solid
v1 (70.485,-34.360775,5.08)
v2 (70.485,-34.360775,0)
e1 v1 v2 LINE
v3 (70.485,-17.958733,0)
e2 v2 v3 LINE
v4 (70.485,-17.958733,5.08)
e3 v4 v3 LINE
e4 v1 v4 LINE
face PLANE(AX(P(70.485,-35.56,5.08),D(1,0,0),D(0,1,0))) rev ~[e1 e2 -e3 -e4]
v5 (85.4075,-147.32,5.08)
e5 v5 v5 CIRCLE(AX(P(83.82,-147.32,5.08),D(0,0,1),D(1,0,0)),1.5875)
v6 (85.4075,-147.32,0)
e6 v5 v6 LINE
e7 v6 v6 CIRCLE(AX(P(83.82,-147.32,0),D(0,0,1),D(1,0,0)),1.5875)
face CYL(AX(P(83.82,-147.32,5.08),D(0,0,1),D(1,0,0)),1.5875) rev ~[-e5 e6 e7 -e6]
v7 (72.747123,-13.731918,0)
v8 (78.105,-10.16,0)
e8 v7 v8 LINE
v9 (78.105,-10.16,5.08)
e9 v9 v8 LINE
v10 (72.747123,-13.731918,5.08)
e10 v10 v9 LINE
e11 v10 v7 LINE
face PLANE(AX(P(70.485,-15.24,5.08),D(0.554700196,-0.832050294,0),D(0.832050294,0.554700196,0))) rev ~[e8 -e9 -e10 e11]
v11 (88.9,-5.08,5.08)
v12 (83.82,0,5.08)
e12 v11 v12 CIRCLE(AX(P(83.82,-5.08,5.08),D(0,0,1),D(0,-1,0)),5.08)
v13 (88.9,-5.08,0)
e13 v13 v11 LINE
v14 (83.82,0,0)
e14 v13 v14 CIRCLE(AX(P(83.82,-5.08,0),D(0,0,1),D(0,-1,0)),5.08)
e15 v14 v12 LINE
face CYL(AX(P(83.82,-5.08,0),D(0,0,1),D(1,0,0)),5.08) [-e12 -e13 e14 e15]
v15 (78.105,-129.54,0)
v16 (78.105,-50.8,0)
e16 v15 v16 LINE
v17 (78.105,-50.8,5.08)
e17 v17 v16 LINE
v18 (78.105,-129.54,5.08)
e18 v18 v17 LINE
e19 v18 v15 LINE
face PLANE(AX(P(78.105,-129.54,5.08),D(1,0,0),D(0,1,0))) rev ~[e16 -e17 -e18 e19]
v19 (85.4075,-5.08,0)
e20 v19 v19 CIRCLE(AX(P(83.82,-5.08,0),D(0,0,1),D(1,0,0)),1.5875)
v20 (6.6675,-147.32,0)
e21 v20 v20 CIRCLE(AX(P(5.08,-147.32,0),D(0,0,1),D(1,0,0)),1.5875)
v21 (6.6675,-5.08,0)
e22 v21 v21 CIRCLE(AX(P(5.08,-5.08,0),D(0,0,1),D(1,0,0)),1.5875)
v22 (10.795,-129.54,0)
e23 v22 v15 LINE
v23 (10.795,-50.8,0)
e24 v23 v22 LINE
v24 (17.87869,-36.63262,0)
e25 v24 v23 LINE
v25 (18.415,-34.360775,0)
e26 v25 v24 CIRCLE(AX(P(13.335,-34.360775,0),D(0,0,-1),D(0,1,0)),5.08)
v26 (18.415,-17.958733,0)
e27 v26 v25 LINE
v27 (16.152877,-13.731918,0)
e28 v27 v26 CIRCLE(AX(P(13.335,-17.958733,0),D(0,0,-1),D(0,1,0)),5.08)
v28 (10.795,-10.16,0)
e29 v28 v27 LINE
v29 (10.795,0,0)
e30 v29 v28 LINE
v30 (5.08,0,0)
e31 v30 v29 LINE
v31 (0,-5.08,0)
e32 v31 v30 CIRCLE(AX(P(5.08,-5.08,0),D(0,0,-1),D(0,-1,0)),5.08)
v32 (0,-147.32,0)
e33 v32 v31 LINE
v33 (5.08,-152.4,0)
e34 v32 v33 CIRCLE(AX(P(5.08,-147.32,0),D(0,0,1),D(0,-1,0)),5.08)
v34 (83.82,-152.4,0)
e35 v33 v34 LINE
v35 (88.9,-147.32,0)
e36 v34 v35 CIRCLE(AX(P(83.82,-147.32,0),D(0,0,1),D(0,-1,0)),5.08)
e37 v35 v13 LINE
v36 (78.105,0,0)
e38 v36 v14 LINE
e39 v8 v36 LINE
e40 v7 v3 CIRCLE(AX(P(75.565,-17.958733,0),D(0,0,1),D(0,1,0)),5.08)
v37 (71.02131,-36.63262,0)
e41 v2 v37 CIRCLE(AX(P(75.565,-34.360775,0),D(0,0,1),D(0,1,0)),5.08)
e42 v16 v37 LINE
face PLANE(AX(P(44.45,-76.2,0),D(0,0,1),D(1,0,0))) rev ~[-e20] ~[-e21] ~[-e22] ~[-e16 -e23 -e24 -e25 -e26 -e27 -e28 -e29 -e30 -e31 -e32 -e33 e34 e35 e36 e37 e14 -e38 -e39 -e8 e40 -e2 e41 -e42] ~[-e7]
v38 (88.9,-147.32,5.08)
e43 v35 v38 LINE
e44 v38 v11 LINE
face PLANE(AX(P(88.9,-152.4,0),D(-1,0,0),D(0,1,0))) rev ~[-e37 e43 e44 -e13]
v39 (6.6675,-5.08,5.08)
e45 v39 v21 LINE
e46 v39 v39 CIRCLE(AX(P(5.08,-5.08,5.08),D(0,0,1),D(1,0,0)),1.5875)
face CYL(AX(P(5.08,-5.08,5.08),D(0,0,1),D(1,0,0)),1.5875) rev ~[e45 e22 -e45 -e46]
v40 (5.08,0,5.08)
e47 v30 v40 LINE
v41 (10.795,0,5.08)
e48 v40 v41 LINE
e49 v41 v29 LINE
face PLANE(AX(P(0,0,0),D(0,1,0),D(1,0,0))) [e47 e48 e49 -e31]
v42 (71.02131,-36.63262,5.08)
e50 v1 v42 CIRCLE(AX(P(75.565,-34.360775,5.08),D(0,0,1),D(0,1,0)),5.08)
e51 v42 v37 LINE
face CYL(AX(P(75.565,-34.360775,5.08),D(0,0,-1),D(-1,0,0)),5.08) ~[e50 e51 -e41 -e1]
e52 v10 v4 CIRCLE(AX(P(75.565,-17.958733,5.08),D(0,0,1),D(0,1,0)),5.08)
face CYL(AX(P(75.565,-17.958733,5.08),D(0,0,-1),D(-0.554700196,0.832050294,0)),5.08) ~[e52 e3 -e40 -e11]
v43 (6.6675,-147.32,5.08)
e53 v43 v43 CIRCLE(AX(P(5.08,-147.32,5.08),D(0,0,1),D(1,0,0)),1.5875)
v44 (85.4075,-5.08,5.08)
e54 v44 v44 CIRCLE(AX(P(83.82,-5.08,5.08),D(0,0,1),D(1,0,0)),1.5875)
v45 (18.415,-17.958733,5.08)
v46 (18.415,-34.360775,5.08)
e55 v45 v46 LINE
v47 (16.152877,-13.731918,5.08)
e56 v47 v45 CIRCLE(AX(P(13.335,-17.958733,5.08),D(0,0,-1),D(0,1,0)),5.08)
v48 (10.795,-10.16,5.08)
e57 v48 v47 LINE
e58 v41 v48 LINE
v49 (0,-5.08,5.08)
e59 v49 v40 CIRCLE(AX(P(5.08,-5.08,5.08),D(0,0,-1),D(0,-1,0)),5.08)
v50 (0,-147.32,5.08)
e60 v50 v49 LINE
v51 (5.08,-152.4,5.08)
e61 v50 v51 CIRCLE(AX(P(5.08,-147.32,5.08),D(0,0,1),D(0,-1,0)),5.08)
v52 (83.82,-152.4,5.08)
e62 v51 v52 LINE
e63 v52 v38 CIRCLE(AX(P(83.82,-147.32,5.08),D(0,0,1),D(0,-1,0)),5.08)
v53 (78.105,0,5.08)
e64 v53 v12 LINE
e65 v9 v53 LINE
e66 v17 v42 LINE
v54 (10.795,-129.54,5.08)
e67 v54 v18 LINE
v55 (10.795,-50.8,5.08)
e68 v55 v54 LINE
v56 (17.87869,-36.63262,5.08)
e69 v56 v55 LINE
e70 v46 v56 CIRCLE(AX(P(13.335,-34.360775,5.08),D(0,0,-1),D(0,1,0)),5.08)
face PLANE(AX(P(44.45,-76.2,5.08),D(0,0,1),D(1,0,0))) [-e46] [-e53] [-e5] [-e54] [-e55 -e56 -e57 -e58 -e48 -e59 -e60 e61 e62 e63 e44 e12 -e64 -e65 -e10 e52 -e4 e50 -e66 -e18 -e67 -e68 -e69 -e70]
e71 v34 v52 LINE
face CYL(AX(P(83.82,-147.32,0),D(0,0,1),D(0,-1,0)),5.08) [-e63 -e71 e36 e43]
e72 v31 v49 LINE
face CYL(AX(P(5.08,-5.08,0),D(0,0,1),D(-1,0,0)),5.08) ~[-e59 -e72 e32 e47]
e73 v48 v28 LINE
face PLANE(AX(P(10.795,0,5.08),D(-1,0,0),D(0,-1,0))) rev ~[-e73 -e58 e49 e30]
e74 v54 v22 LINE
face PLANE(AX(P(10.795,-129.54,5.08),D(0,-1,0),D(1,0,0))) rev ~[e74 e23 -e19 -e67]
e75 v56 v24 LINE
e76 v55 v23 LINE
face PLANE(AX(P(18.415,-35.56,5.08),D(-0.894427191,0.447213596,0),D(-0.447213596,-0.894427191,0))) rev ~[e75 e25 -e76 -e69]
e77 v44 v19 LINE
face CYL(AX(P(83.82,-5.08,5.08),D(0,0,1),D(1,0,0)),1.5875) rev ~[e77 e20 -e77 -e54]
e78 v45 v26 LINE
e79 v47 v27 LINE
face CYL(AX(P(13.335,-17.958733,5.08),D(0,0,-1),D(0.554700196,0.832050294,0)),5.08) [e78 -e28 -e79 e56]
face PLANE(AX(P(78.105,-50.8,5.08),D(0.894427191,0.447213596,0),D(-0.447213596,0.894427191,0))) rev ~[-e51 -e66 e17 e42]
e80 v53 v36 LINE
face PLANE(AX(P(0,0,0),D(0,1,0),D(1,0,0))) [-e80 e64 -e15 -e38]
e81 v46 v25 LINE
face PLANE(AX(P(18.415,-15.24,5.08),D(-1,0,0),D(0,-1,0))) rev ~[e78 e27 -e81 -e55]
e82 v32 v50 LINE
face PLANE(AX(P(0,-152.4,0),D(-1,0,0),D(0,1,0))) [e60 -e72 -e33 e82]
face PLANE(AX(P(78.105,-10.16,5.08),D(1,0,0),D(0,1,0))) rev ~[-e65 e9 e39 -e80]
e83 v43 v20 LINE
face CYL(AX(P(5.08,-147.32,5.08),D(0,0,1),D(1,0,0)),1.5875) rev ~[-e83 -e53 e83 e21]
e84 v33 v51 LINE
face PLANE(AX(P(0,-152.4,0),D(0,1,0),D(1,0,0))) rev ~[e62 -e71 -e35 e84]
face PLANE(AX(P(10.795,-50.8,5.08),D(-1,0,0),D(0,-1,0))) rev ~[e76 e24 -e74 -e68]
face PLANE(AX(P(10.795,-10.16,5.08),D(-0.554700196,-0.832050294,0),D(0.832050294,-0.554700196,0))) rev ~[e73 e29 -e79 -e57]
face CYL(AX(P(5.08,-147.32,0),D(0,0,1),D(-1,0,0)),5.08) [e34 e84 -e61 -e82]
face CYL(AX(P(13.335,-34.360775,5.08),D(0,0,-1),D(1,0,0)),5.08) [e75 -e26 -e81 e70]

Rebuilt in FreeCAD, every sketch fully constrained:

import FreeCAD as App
import Part
import Sketcher
from FreeCAD import Vector
Q = App.Units.Quantity


def edges_at(feature, points):
    """Names of the edges that pass closest to the given points."""
    edges = feature.Shape.Edges
    near = lambda p: min(range(len(edges)), key=lambda i: edges[i].distToShape(Part.Vertex(*p))[0])
    return sorted({f"Edge{near(p) + 1}" for p in points})


def add_polygon(sketch, points):
    """Adds a closed chain of lines whose ends are joined by coincident constraints."""
    first, n = sketch.GeometryCount, len(points)
    for a, b in zip(points, points[1:] + points[:1]):
        sketch.addGeometry(Part.LineSegment(App.Vector(*a, 0), App.Vector(*b, 0)), False)
    for i in range(n):
        sketch.addConstraint(Sketcher.Constraint("Coincident", first + i, 2, first + (i + 1) % n, 1))

doc = App.newDocument("Part")
body = doc.addObject("PartDesign::Body", "Body")

sketch1 = doc.addObject("Sketcher::SketchObject", "Sketch")
body.addObject(sketch1)
sketch1.AttachmentSupport = (doc.XY_Plane, [""])
sketch1.MapMode = "FlatFace"
add_polygon(sketch1, [(0, 0), (0, -152), (89, -152), (89, 0)])
sketch1.addConstraint([
    Sketcher.Constraint("Vertical", 0),
    Sketcher.Constraint("Horizontal", 1),
    Sketcher.Constraint("Vertical", 2),
    Sketcher.Constraint("Horizontal", 3),
    Sketcher.Constraint("Coincident", 3, 2, -1, 1),
    Sketcher.Constraint("DistanceY", 0, 2, 0, 1, Q("6 in")),
    Sketcher.Constraint("DistanceX", 1, 1, 1, 2, Q("3.5 in")),
])
pad1 = doc.addObject("PartDesign::Pad", "Pad")
body.addObject(pad1)
pad1.Profile = sketch1
pad1.Length = Q("0.2 in")

sketch2 = doc.addObject("Sketcher::SketchObject", "Sketch001")
body.addObject(sketch2)
sketch2.AttachmentSupport = (doc.XY_Plane, [""])
sketch2.MapMode = "FlatFace"
sketch2.AttachmentOffset = App.Placement(Vector(0, 0, 0.2 * 25.4), App.Rotation())
add_polygon(sketch2, [(78, 0), (11, 0), (11, -10), (18, -15), (18, -36), (11, -51), (11, -130), (78, -130), (78, -51), (70, -36), (70, -15), (78, -10)])
sketch2.addConstraint([
    Sketcher.Constraint("Horizontal", 0),
    Sketcher.Constraint("Vertical", 1),
    Sketcher.Constraint("Vertical", 3),
    Sketcher.Constraint("Vertical", 5),
    Sketcher.Constraint("Horizontal", 6),
    Sketcher.Constraint("Vertical", 7),
    Sketcher.Constraint("Vertical", 9),
    Sketcher.Constraint("Vertical", 11),
    Sketcher.Constraint("PointOnObject", 0, 2, -1),
    Sketcher.Constraint("Horizontal", 4, 2, 7, 2),
    Sketcher.Constraint("Horizontal", 3, 2, 8, 2),
    Sketcher.Constraint("Horizontal", 2, 2, 9, 2),
    Sketcher.Constraint("Horizontal", 1, 2, 10, 2),
    Sketcher.Constraint("Vertical", 1, 2, 4, 2),
    Sketcher.Constraint("Vertical", 7, 2, 10, 2),
    Sketcher.Constraint("Equal", 4, 8),
    Sketcher.Constraint("DistanceY", 1, 2, 1, 1, Q("0.4 in")),
    Sketcher.Constraint("DistanceY", 3, 2, 3, 1, Q("0.8 in")),
    Sketcher.Constraint("DistanceY", 5, 2, 5, 1, Q("3.1 in")),
    Sketcher.Constraint("DistanceY", 4, 2, -1, 1, Q("2 in")),
    Sketcher.Constraint("DistanceY", 3, 2, 1, 2, Q("1 in")),
    Sketcher.Constraint("DistanceX", 0, 2, 0, 1, Q("2.65 in")),
    Sketcher.Constraint("DistanceX", 1, 2, 2, 2, Q("0.3 in")),
    Sketcher.Constraint("DistanceX", -1, 1, 0, 2, Q("0.425 in")),
])
pocket1 = doc.addObject("PartDesign::Pocket", "Pocket")
body.addObject(pocket1)
pocket1.Profile = sketch2
pocket1.Length = Q("1 in")

sketch3 = doc.addObject("Sketcher::SketchObject", "Sketch002")
body.addObject(sketch3)
sketch3.AttachmentSupport = (doc.XY_Plane, [""])
sketch3.MapMode = "FlatFace"
sketch3.AttachmentOffset = App.Placement(Vector(0, 0, 0.2 * 25.4), App.Rotation())
sketch3.addGeometry([
    Part.Circle(Vector(5.1, -5.1, 0), Vector(0, 0, 1), 1.6),
    Part.Circle(Vector(83.8, -5.1, 0), Vector(0, 0, 1), 1.6),
    Part.Circle(Vector(83.8, -147.3, 0), Vector(0, 0, 1), 1.6),
    Part.Circle(Vector(5.1, -147.3, 0), Vector(0, 0, 1), 1.6),
], False)
sketch3.addConstraint([
    Sketcher.Constraint("Equal", 0, 1),
    Sketcher.Constraint("Equal", 1, 2),
    Sketcher.Constraint("Equal", 2, 3),
    Sketcher.Constraint("Horizontal", 0, 3, 1, 3),
    Sketcher.Constraint("Horizontal", 2, 3, 3, 3),
    Sketcher.Constraint("Vertical", 1, 3, 2, 3),
    Sketcher.Constraint("Vertical", 0, 3, 3, 3),
    Sketcher.Constraint("Diameter", 0, Q("0.125 in")),
    Sketcher.Constraint("DistanceX", -1, 1, 0, 3, Q("0.2 in")),
    Sketcher.Constraint("DistanceY", 0, 3, -1, 1, Q("0.2 in")),
    Sketcher.Constraint("DistanceX", -1, 1, 1, 3, Q("3.3 in")),
    Sketcher.Constraint("DistanceY", 2, 3, -1, 1, Q("5.8 in")),
])
pocket2 = doc.addObject("PartDesign::Pocket", "Pocket001")
body.addObject(pocket2)
pocket2.Profile = sketch3
pocket2.Length = Q("1 in")
doc.recompute()

fillet = doc.addObject("PartDesign::Fillet", "Fillet")
body.addObject(fillet)
fillet.Base = (pocket2, edges_at(pocket2, [
    (88.9, -152.4, 2.54),
    (0, -152.4, 2.54),
    (88.9, 0, 2.54),
    (0, 0, 2.54),
    (18.415, -15.24, 2.54),
    (18.415, -35.56, 2.54),
    (70.485, -35.56, 2.54),
    (70.485, -15.24, 2.54),
]))
fillet.Radius = Q("0.2 in")

doc.recompute()
